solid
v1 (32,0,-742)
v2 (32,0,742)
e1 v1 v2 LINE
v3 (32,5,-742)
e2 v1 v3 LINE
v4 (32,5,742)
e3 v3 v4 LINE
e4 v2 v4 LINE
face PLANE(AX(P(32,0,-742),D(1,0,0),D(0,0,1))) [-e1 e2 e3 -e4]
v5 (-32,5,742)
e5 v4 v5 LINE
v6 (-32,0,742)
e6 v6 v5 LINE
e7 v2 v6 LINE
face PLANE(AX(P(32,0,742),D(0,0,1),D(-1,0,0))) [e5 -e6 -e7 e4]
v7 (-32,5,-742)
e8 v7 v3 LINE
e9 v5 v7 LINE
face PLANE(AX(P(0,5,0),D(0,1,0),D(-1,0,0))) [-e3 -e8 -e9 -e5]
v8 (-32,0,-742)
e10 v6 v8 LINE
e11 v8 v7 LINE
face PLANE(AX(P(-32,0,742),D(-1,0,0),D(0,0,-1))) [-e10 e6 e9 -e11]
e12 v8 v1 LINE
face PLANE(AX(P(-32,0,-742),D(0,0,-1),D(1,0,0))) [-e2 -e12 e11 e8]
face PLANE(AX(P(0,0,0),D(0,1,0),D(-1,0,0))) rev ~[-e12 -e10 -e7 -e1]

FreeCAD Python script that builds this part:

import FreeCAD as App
import Part
import Sketcher

V = App.Vector
Q = App.Units.Quantity

doc = App.newDocument("Part")
body = doc.addObject("PartDesign::Body", "Body")

# Sketch on XZ plane
sketch1 = body.newObject("Sketcher::SketchObject", "Sketch")
sketch1.AttachmentSupport = (doc.getObject("XZ_Plane"), [""])
sketch1.MapMode = "FlatFace"
sketch1.addGeometry([
    Part.LineSegment(V(-32, 742, 0), V(32, 742, 0)),
    Part.LineSegment(V(32, 742, 0), V(32, -742, 0)),
    Part.LineSegment(V(32, -742, 0), V(-32, -742, 0)),
    Part.LineSegment(V(-32, -742, 0), V(-32, 742, 0)),
], False)
sketch1.addConstraint([
    Sketcher.Constraint("Coincident", 0, 2, 1, 1),
    Sketcher.Constraint("Coincident", 1, 2, 2, 1),
    Sketcher.Constraint("Coincident", 2, 2, 3, 1),
    Sketcher.Constraint("Coincident", 3, 2, 0, 1),
    Sketcher.Constraint("Horizontal", 0),
    Sketcher.Constraint("Vertical", 1),
    Sketcher.Constraint("Horizontal", 2),
    Sketcher.Constraint("Vertical", 3),
    Sketcher.Constraint("Symmetric", 0, 2, 2, 2, -1, 1),
    Sketcher.Constraint("DistanceX", 0, 1, 0, 2, Q("64 mm")),
    Sketcher.Constraint("DistanceY", 1, 2, 1, 1, Q("1484 mm")),
])
pad1 = body.newObject("PartDesign::Pad", "Pad")
pad1.Profile = sketch1
pad1.Length = 5
pad1.Reversed = True

doc.recompute()
